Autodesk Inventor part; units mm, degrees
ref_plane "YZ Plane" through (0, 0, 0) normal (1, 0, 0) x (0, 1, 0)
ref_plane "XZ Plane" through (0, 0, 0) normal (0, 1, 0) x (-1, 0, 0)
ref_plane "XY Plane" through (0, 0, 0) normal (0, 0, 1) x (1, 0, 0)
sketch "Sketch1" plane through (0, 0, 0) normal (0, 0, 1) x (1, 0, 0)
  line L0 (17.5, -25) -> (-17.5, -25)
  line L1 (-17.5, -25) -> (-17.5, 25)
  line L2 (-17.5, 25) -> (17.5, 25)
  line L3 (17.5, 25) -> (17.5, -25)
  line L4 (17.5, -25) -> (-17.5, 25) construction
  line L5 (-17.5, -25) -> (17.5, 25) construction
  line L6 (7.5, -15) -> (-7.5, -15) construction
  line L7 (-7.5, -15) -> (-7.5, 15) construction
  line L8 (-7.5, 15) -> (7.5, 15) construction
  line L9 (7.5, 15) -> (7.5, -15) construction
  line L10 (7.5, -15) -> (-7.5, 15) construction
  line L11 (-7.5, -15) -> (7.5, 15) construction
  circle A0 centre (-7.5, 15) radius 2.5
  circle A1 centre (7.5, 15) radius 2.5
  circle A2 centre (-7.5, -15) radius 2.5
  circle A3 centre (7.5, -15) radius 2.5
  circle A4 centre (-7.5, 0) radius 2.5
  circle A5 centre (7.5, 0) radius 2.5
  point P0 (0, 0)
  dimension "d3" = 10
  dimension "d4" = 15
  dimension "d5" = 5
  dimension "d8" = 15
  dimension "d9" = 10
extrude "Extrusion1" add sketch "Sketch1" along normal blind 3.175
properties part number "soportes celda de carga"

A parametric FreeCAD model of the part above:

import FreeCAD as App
import Part
import Sketcher
Q = App.Units.Quantity


def add_polygon(sketch, points):
    """Adds a closed chain of lines whose ends are joined by coincident constraints."""
    first, n = sketch.GeometryCount, len(points)
    for a, b in zip(points, points[1:] + points[:1]):
        sketch.addGeometry(Part.LineSegment(App.Vector(*a, 0), App.Vector(*b, 0)), False)
    for i in range(n):
        sketch.addConstraint(Sketcher.Constraint("Coincident", first + i, 2, first + (i + 1) % n, 1))

doc = App.newDocument("Part")
body = doc.addObject("PartDesign::Body", "Body")

# Sketch on XY plane
sketch1 = body.newObject("Sketcher::SketchObject", "Sketch")
sketch1.AttachmentSupport = (doc.getObject("XY_Plane"), [""])
sketch1.MapMode = "FlatFace"
add_polygon(sketch1, [(-17.5, -25), (17.5, -25), (17.5, 25), (-17.5, 25)])  # lines 0-3
sketch1.addGeometry(Part.Circle(App.Vector(-7.5, -15, 0), App.Vector(0, 0, 1), 2.5), False)  # 4
sketch1.addGeometry(Part.Circle(App.Vector(7.5, -15, 0), App.Vector(0, 0, 1), 2.5), False)  # 5
sketch1.addGeometry(Part.Circle(App.Vector(-7.5, 0, 0), App.Vector(0, 0, 1), 2.5), False)  # 6
sketch1.addGeometry(Part.Circle(App.Vector(-7.5, 15, 0), App.Vector(0, 0, 1), 2.5), False)  # 7
sketch1.addGeometry(Part.Circle(App.Vector(7.5, 0, 0), App.Vector(0, 0, 1), 2.5), False)  # 8
sketch1.addGeometry(Part.Circle(App.Vector(7.5, 15, 0), App.Vector(0, 0, 1), 2.5), False)  # 9
sketch1.addConstraint(Sketcher.Constraint("Horizontal", 0))
sketch1.addConstraint(Sketcher.Constraint("Vertical", 1))
sketch1.addConstraint(Sketcher.Constraint("Horizontal", 2))
sketch1.addConstraint(Sketcher.Constraint("Vertical", 3))
sketch1.addConstraint(Sketcher.Constraint("Equal", 4, 5))
sketch1.addConstraint(Sketcher.Constraint("Equal", 5, 6))
sketch1.addConstraint(Sketcher.Constraint("Equal", 6, 7))
sketch1.addConstraint(Sketcher.Constraint("Equal", 7, 8))
sketch1.addConstraint(Sketcher.Constraint("Equal", 8, 9))
sketch1.addConstraint(Sketcher.Constraint("Symmetric", 5, 3, 7, 3, -1, 1))
sketch1.addConstraint(Sketcher.Constraint("Symmetric", 6, 3, 8, 3, -1, 1))
sketch1.addConstraint(Sketcher.Constraint("Symmetric", 4, 3, 9, 3, -1, 1))
sketch1.addConstraint(Sketcher.Constraint("Symmetric", 0, 2, 2, 2, -1, 1))
sketch1.addConstraint(Sketcher.Constraint("Symmetric", 4, 3, 5, 3, -2))
sketch1.addConstraint(Sketcher.Constraint("PointOnObject", 6, 3, -1))
sketch1.addConstraint(Sketcher.Constraint("Vertical", 4, 3, 6, 3))
sketch1.addConstraint(Sketcher.Constraint("Diameter", 4, Q("5 mm")))
sketch1.addConstraint(Sketcher.Constraint("DistanceY", 4, 3, -1, 1, Q("15 mm")))
sketch1.addConstraint(Sketcher.Constraint("DistanceX", 4, 3, 5, 3, Q("15 mm")))
sketch1.addConstraint(Sketcher.Constraint("DistanceX", 5, 3, 0, 2, Q("10 mm")))
sketch1.addConstraint(Sketcher.Constraint("DistanceY", 0, 2, 5, 3, Q("10 mm")))
pad1 = body.newObject("PartDesign::Pad", "Pad")
pad1.Profile = sketch1
pad1.Length = 3.175

doc.recompute()
